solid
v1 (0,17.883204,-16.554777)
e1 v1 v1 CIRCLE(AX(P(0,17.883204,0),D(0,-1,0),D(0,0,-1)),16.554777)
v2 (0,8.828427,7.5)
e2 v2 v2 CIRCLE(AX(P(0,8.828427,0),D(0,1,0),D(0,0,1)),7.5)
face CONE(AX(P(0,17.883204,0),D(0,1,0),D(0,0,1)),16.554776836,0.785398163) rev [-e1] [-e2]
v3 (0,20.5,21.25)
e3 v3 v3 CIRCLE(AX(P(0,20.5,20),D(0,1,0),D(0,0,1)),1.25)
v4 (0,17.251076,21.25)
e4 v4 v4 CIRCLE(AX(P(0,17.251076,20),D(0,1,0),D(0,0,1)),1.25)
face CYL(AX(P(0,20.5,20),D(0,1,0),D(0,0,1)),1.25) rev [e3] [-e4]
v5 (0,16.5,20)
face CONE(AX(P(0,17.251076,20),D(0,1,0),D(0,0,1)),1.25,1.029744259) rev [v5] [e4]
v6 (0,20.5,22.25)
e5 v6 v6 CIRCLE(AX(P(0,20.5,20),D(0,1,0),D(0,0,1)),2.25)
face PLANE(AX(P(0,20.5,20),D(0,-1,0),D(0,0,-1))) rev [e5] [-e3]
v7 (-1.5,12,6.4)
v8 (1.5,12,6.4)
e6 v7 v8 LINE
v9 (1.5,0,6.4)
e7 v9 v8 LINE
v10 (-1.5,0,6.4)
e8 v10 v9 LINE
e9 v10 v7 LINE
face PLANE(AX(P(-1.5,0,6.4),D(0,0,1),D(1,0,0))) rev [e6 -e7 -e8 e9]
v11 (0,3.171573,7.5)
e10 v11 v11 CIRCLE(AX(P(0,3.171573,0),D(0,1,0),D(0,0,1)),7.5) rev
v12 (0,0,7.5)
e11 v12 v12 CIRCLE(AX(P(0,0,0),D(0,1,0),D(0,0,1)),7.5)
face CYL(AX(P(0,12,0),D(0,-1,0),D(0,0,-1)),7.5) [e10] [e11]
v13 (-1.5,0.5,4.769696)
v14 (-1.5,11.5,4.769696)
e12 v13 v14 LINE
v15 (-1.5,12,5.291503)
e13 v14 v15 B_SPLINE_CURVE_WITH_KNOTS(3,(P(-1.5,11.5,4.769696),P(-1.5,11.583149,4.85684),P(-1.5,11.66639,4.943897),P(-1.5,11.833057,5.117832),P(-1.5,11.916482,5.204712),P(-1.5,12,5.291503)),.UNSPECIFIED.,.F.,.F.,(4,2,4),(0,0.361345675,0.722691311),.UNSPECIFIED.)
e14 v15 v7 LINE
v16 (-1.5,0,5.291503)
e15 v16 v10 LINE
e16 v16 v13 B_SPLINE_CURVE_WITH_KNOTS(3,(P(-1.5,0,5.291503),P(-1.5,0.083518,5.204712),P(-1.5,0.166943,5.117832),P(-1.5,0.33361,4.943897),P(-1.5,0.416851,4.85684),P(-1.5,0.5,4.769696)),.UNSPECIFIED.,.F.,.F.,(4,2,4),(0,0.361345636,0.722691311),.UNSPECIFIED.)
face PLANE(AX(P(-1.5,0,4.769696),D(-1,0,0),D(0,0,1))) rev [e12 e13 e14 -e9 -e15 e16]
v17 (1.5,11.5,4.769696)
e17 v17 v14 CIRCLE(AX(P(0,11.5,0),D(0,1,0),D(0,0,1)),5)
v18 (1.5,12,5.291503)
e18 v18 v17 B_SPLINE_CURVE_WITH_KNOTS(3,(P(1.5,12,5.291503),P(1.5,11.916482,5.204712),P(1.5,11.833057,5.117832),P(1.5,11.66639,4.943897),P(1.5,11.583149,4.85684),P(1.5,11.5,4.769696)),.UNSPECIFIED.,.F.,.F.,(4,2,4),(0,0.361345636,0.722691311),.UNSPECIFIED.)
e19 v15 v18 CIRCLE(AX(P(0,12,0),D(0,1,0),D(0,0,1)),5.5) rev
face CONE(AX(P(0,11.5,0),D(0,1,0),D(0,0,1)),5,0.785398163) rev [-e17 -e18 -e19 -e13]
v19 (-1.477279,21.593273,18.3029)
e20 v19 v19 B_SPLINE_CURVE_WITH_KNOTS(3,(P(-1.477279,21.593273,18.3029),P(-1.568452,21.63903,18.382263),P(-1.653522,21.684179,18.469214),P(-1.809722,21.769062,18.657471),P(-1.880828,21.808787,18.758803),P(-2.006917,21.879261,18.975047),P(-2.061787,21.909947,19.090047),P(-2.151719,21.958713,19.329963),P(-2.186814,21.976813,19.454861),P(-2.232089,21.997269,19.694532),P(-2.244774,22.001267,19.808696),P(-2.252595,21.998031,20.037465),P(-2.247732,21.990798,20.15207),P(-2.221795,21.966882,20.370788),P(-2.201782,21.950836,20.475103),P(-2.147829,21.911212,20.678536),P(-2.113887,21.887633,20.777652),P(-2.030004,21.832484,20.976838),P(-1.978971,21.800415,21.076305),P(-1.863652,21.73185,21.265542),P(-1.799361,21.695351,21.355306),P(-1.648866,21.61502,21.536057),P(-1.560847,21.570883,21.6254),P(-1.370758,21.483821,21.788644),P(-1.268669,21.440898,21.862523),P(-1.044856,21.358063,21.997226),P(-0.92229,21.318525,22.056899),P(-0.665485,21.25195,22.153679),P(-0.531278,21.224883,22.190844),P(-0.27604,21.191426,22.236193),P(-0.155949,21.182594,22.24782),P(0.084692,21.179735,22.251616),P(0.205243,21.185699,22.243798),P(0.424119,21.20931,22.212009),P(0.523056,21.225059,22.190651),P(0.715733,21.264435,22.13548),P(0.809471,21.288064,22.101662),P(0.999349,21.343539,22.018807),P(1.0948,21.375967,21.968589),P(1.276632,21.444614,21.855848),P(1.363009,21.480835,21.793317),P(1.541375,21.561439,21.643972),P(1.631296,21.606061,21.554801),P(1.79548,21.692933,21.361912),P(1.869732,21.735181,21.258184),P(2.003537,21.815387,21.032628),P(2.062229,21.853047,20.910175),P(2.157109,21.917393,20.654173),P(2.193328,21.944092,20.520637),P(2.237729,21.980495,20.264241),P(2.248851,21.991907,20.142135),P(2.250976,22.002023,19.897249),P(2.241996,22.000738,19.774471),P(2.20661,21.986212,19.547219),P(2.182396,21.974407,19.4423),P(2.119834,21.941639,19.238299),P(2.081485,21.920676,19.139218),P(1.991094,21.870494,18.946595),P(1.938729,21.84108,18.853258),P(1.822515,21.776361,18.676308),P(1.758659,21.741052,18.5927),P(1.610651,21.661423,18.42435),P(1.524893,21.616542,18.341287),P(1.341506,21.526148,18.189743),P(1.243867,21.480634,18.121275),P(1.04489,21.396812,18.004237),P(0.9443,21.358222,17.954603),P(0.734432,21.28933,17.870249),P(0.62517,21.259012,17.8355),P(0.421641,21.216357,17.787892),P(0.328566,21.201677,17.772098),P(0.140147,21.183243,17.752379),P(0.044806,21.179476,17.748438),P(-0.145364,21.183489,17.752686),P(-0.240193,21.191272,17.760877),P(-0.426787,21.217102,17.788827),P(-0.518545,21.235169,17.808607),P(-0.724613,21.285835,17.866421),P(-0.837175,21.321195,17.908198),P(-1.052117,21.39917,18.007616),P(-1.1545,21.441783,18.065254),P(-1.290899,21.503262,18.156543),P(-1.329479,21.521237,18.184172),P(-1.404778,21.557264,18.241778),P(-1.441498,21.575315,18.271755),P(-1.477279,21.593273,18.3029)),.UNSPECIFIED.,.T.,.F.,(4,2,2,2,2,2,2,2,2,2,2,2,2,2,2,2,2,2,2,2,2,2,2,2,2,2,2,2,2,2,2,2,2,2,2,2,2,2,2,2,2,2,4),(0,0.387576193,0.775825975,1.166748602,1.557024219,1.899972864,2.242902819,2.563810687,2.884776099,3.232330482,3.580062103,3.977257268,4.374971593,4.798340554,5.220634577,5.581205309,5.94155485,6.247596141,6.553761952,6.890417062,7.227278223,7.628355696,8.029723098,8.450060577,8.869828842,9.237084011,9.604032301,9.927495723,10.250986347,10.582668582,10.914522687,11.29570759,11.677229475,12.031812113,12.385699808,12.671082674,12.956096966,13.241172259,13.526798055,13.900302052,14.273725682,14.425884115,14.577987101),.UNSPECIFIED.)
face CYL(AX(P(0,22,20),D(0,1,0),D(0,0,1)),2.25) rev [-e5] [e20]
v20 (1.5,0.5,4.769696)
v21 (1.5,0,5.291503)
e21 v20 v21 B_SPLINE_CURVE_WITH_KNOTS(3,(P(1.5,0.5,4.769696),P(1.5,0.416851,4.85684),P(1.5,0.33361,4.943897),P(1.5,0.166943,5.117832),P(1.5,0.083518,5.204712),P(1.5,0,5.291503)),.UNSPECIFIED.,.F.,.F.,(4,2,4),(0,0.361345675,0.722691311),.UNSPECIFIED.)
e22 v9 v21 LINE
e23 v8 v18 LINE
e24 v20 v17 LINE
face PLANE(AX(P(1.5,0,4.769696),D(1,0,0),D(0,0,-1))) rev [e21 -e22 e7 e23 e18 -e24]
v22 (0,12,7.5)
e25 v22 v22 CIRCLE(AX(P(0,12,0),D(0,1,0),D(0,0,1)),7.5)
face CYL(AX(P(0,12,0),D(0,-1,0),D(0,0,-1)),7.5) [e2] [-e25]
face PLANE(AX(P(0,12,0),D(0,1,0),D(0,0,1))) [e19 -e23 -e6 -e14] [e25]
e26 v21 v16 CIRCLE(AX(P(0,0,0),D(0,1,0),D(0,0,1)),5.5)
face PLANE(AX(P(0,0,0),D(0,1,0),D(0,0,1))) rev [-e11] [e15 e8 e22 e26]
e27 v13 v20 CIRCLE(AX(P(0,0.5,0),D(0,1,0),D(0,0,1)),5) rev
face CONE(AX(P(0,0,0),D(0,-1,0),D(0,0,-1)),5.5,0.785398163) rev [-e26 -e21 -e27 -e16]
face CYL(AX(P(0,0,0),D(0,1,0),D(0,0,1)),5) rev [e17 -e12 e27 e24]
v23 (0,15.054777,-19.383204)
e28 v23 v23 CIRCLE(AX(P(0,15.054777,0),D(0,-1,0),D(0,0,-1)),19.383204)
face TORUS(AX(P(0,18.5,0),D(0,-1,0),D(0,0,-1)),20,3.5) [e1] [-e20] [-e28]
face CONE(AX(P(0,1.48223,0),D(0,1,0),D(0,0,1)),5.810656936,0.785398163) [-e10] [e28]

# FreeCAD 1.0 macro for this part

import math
import FreeCAD as App
import Part
import Sketcher

V = App.Vector
Q = App.Units.Quantity


def edges_at(feature, points):
    """Names of the edges that pass closest to the given points."""
    edges = feature.Shape.Edges
    near = lambda p: min(range(len(edges)), key=lambda i: edges[i].distToShape(Part.Vertex(*p))[0])
    return sorted({f"Edge{near(p) + 1}" for p in points})

doc = App.newDocument("Part")
params = doc.addObject("Spreadsheet::Sheet", "Params")
for row, (alias, value) in enumerate([
    ("sketch1_diameter", "15 mm"),
    ("pad1_length", "12 mm"),
    ("sketch2_radius", "3.5 mm"),
    ("sketch2_length", "4 mm"),
    ("revolution_angle", "360 deg"),
    ("sketch3_radius", "5 mm"),
    ("sketch3_width", "3 mm"),
    ("chamfer_size", "0.5 mm"),
    ("sketch4_diameter", "4.5 mm"),
    ("hole_diameter", "4.5 mm"),
    ("hole_depth", "1.5 mm"),
    ("sketch5_diameter", "2.5 mm"),
    ("hole2_diameter", "2.5 mm"),
    ("hole2_depth", "3.248924 mm"),
], start=1):
    params.set(f"A{row}", alias)
    params.set(f"B{row}", "=" + value)
    params.setAlias(f"B{row}", alias)

body = doc.addObject("PartDesign::Body", "Body")

# Sketch on XZ plane
sketch1 = body.newObject("Sketcher::SketchObject", "Sketch")
sketch1.AttachmentSupport = (doc.getObject("XZ_Plane"), [""])
sketch1.MapMode = "FlatFace"
sketch1.addGeometry(Part.Circle(V(0, 0, 0), V(0, 0, 1), 8), False)
sketch1.addConstraint([
    Sketcher.Constraint("Coincident", 0, 3, -1, 1),
    Sketcher.Constraint("Diameter", 0, Q("15 mm")),
])
sketch1.setExpression("Constraints[1]", "Params.sketch1_diameter")
pad1 = body.newObject("PartDesign::Pad", "Pad")
pad1.Profile = sketch1
pad1.setExpression("Length", "Params.pad1_length")
pad1.Reversed = True

# Sketch on XY plane
sketch2 = body.newObject("Sketcher::SketchObject", "Sketch001")
sketch2.AttachmentSupport = (doc.getObject("XY_Plane"), [""])
sketch2.MapMode = "FlatFace"
sketch2.addGeometry([
    Part.LineSegment(V(3, 4.3, 0), V(5.8, 1.5, 0)),
    Part.LineSegment(V(5.8, 1.5, 0), V(19.4, 15.1, 0)),
    Part.ArcOfCircle(Part.Circle(V(20, 18.5, 0), V(0, 0, 1), 3.5), math.radians(-100), math.radians(190)),
    Part.LineSegment(V(16.6, 17.9, 0), V(3, 4.3, 0)),
], False)
sketch2.addConstraint([
    Sketcher.Constraint("Coincident", 0, 2, 1, 1),
    Sketcher.Constraint("Coincident", 1, 2, 2, 1),
    Sketcher.Constraint("Coincident", 2, 2, 3, 1),
    Sketcher.Constraint("Coincident", 3, 2, 0, 1),
    Sketcher.Constraint("Perpendicular", 0, 1),
    Sketcher.Constraint("Parallel", 1, 3),
    Sketcher.Constraint("Equal", 1, 3),
    Sketcher.Constraint("Radius", 2, Q("3.5 mm")),
    Sketcher.Constraint("Angle", 0, Q("-45 deg")),
    Sketcher.Constraint("Distance", 0, Q("4 mm")),
    Sketcher.Constraint("DistanceX", -1, 1, 2, 3, Q("20 mm")),
    Sketcher.Constraint("DistanceY", -1, 1, 2, 3, Q("18.5 mm")),
    Sketcher.Constraint("Distance", 1, Q("19.19448 mm")),
])
sketch2.setExpression("Constraints[7]", "Params.sketch2_radius")
sketch2.setExpression("Constraints[9]", "Params.sketch2_length")
revolution = body.newObject("PartDesign::Revolution", "Revolution")
revolution.Profile = sketch2
revolution.ReferenceAxis = (sketch2, ["V_Axis"])
revolution.setExpression("Angle", "Params.revolution_angle")

# Sketch on XZ plane
sketch3 = body.newObject("Sketcher::SketchObject", "Sketch002")
sketch3.AttachmentSupport = (doc.getObject("XZ_Plane"), [""])
sketch3.MapMode = "FlatFace"
sketch3.AttachmentOffset = App.Placement(V(0, 0, -12), App.Rotation())
sketch3.addGeometry([
    Part.LineSegment(V(-1.5, 4.8, 0), V(-1.5, 6.4, 0)),
    Part.LineSegment(V(-1.5, 6.4, 0), V(1.5, 6.4, 0)),
    Part.LineSegment(V(1.5, 6.4, 0), V(1.5, 4.8, 0)),
    Part.ArcOfCircle(Part.Circle(V(0, 0, 0), V(0, 0, 1), 5), math.radians(107), math.radians(433)),
], False)
sketch3.addConstraint([
    Sketcher.Constraint("Coincident", 0, 2, 1, 1),
    Sketcher.Constraint("Coincident", 1, 2, 2, 1),
    Sketcher.Constraint("Coincident", 2, 2, 3, 2),
    Sketcher.Constraint("Coincident", 3, 1, 0, 1),
    Sketcher.Constraint("Vertical", 0),
    Sketcher.Constraint("Horizontal", 1),
    Sketcher.Constraint("Vertical", 2),
    Sketcher.Constraint("Coincident", 3, 3, -1, 1),
    Sketcher.Constraint("Horizontal", 2, 2, 3, 1),
    Sketcher.Constraint("Radius", 3, Q("5 mm")),
    Sketcher.Constraint("DistanceX", 1, 1, 1, 2, Q("3 mm")),
    Sketcher.Constraint("DistanceY", -1, 1, 0, 2, Q("6.4 mm")),
])
sketch3.setExpression("Constraints[9]", "Params.sketch3_radius")
sketch3.setExpression("Constraints[10]", "Params.sketch3_width")
pocket1 = body.newObject("PartDesign::Pocket", "Pocket")
pocket1.Profile = sketch3
pocket1.Type = "ThroughAll"
pocket1.Reversed = True
doc.recompute()

chamfer = body.newObject("PartDesign::Chamfer", "Chamfer")
chamfer.Base = (pocket1, edges_at(pocket1, [(0, 0, -5), (0, 12, -5)]))
chamfer.setExpression("Size", "Params.chamfer_size")

# Sketch on XZ plane
sketch4 = body.newObject("Sketcher::SketchObject", "Sketch003")
sketch4.AttachmentSupport = (doc.getObject("XZ_Plane"), [""])
sketch4.MapMode = "FlatFace"
sketch4.AttachmentOffset = App.Placement(V(0, 0, -22), App.Rotation())
sketch4.addGeometry(Part.Circle(V(0, 20, 0), V(0, 0, 1), 2.2), False)
sketch4.addConstraint([
    Sketcher.Constraint("PointOnObject", 0, 3, -2),
    Sketcher.Constraint("Diameter", 0, Q("4.5 mm")),
    Sketcher.Constraint("DistanceY", -1, 1, 0, 3, Q("20 mm")),
])
sketch4.setExpression("Constraints[1]", "Params.sketch4_diameter")
doc.recompute()
hole = body.newObject("PartDesign::Hole", "Hole")
hole.Profile = sketch4
hole.ThreadType = "None"
hole.setExpression("Diameter", "Params.hole_diameter")
hole.DepthType = "Dimension"
hole.setExpression("Depth", "Params.hole_depth")
hole.DrillPoint = "Flat"
hole.Reversed = True

# Sketch on XZ plane
sketch5 = body.newObject("Sketcher::SketchObject", "Sketch004")
sketch5.AttachmentSupport = (doc.getObject("XZ_Plane"), [""])
sketch5.MapMode = "FlatFace"
sketch5.AttachmentOffset = App.Placement(V(0, 0, -20.5), App.Rotation())
sketch5.addGeometry([
    Part.Circle(V(0, 20, 0), V(0, 0, 1), 1.2),
    Part.Circle(V(0, 0, 0), V(0, 0, 1), 1.2),
], False)
sketch5.addConstraint([
    Sketcher.Constraint("Coincident", 1, 3, -1, 1),
    Sketcher.Constraint("Equal", 0, 1),
    Sketcher.Constraint("PointOnObject", 0, 3, -2),
    Sketcher.Constraint("Diameter", 0, Q("2.5 mm")),
    Sketcher.Constraint("DistanceY", -1, 1, 0, 3, Q("20 mm")),
])
sketch5.setExpression("Constraints[3]", "Params.sketch5_diameter")
doc.recompute()
hole2 = body.newObject("PartDesign::Hole", "Hole001")
hole2.Profile = sketch5
hole2.ThreadType = "None"
hole2.setExpression("Diameter", "Params.hole2_diameter")
hole2.DepthType = "Dimension"
hole2.setExpression("Depth", "Params.hole2_depth")
hole2.DrillPoint = "Angled"
hole2.DrillPointAngle = 118
hole2.Reversed = True

doc.recompute()
